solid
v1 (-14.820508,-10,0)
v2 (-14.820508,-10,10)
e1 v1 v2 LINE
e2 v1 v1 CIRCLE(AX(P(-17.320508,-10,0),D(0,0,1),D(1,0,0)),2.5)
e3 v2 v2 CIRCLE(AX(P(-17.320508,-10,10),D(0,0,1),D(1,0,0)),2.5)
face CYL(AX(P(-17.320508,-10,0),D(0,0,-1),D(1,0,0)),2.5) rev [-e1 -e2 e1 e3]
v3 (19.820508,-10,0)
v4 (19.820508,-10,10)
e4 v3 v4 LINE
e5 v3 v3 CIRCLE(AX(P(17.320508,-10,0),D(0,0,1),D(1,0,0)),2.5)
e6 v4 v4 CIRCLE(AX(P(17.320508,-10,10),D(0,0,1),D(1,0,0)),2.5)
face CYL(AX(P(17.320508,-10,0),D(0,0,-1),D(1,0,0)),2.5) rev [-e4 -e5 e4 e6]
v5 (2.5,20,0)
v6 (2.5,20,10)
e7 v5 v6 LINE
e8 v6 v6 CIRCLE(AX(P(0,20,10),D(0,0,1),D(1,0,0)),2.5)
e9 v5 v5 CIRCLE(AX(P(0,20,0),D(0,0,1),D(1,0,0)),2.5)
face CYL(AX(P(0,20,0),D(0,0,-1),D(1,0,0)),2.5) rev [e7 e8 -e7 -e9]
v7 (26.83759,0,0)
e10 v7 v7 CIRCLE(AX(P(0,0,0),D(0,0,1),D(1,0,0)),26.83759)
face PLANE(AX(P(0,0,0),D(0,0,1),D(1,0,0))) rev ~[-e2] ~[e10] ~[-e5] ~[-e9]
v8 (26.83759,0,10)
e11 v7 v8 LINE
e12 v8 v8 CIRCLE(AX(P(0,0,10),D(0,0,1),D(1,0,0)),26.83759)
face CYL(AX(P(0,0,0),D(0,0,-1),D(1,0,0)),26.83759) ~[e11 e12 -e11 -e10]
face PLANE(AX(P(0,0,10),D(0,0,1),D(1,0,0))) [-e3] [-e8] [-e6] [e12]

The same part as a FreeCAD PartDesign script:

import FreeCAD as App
import Part
import Sketcher

V = App.Vector

doc = App.newDocument("Part")
body = doc.addObject("PartDesign::Body", "Body")

# Sketch on XY plane
sketch1 = doc.addObject("Sketcher::SketchObject", "Sketch")
body.addObject(sketch1)
sketch1.AttachmentSupport = (doc.XY_Plane, [""])
sketch1.MapMode = "FlatFace"
sketch1.addGeometry([
    Part.Circle(V(0, 0, 0), V(0, 0, 1), 26.83759),
    Part.Circle(V(-17.320508, -10, 0), V(0, 0, 1), 2.5),
    Part.Circle(V(17.320508, -10, 0), V(0, 0, 1), 2.5),
    Part.Circle(V(0, 20, 0), V(0, 0, 1), 2.5),
], False)
sketch1.addConstraint([
    Sketcher.Constraint("Coincident", 0, 3, -1, 1),
    Sketcher.Constraint("Equal", 1, 2),
    Sketcher.Constraint("Equal", 2, 3),
    Sketcher.Constraint("Symmetric", 1, 3, 2, 3, -2),
    Sketcher.Constraint("PointOnObject", 3, 3, -2),
    Sketcher.Constraint("Diameter", 1, 5.0),
    Sketcher.Constraint("DistanceY", 1, 3, -1, 1, 10.0),
    Sketcher.Constraint("DistanceY", -1, 1, 3, 3, 20.0),
    Sketcher.Constraint("Diameter", 0, 53.67518),
    Sketcher.Constraint("DistanceX", 1, 3, -1, 1, 17.320508),
])
pad1 = doc.addObject("PartDesign::Pad", "Pad")
body.addObject(pad1)
pad1.Profile = sketch1
pad1.Length = 10

doc.recompute()
